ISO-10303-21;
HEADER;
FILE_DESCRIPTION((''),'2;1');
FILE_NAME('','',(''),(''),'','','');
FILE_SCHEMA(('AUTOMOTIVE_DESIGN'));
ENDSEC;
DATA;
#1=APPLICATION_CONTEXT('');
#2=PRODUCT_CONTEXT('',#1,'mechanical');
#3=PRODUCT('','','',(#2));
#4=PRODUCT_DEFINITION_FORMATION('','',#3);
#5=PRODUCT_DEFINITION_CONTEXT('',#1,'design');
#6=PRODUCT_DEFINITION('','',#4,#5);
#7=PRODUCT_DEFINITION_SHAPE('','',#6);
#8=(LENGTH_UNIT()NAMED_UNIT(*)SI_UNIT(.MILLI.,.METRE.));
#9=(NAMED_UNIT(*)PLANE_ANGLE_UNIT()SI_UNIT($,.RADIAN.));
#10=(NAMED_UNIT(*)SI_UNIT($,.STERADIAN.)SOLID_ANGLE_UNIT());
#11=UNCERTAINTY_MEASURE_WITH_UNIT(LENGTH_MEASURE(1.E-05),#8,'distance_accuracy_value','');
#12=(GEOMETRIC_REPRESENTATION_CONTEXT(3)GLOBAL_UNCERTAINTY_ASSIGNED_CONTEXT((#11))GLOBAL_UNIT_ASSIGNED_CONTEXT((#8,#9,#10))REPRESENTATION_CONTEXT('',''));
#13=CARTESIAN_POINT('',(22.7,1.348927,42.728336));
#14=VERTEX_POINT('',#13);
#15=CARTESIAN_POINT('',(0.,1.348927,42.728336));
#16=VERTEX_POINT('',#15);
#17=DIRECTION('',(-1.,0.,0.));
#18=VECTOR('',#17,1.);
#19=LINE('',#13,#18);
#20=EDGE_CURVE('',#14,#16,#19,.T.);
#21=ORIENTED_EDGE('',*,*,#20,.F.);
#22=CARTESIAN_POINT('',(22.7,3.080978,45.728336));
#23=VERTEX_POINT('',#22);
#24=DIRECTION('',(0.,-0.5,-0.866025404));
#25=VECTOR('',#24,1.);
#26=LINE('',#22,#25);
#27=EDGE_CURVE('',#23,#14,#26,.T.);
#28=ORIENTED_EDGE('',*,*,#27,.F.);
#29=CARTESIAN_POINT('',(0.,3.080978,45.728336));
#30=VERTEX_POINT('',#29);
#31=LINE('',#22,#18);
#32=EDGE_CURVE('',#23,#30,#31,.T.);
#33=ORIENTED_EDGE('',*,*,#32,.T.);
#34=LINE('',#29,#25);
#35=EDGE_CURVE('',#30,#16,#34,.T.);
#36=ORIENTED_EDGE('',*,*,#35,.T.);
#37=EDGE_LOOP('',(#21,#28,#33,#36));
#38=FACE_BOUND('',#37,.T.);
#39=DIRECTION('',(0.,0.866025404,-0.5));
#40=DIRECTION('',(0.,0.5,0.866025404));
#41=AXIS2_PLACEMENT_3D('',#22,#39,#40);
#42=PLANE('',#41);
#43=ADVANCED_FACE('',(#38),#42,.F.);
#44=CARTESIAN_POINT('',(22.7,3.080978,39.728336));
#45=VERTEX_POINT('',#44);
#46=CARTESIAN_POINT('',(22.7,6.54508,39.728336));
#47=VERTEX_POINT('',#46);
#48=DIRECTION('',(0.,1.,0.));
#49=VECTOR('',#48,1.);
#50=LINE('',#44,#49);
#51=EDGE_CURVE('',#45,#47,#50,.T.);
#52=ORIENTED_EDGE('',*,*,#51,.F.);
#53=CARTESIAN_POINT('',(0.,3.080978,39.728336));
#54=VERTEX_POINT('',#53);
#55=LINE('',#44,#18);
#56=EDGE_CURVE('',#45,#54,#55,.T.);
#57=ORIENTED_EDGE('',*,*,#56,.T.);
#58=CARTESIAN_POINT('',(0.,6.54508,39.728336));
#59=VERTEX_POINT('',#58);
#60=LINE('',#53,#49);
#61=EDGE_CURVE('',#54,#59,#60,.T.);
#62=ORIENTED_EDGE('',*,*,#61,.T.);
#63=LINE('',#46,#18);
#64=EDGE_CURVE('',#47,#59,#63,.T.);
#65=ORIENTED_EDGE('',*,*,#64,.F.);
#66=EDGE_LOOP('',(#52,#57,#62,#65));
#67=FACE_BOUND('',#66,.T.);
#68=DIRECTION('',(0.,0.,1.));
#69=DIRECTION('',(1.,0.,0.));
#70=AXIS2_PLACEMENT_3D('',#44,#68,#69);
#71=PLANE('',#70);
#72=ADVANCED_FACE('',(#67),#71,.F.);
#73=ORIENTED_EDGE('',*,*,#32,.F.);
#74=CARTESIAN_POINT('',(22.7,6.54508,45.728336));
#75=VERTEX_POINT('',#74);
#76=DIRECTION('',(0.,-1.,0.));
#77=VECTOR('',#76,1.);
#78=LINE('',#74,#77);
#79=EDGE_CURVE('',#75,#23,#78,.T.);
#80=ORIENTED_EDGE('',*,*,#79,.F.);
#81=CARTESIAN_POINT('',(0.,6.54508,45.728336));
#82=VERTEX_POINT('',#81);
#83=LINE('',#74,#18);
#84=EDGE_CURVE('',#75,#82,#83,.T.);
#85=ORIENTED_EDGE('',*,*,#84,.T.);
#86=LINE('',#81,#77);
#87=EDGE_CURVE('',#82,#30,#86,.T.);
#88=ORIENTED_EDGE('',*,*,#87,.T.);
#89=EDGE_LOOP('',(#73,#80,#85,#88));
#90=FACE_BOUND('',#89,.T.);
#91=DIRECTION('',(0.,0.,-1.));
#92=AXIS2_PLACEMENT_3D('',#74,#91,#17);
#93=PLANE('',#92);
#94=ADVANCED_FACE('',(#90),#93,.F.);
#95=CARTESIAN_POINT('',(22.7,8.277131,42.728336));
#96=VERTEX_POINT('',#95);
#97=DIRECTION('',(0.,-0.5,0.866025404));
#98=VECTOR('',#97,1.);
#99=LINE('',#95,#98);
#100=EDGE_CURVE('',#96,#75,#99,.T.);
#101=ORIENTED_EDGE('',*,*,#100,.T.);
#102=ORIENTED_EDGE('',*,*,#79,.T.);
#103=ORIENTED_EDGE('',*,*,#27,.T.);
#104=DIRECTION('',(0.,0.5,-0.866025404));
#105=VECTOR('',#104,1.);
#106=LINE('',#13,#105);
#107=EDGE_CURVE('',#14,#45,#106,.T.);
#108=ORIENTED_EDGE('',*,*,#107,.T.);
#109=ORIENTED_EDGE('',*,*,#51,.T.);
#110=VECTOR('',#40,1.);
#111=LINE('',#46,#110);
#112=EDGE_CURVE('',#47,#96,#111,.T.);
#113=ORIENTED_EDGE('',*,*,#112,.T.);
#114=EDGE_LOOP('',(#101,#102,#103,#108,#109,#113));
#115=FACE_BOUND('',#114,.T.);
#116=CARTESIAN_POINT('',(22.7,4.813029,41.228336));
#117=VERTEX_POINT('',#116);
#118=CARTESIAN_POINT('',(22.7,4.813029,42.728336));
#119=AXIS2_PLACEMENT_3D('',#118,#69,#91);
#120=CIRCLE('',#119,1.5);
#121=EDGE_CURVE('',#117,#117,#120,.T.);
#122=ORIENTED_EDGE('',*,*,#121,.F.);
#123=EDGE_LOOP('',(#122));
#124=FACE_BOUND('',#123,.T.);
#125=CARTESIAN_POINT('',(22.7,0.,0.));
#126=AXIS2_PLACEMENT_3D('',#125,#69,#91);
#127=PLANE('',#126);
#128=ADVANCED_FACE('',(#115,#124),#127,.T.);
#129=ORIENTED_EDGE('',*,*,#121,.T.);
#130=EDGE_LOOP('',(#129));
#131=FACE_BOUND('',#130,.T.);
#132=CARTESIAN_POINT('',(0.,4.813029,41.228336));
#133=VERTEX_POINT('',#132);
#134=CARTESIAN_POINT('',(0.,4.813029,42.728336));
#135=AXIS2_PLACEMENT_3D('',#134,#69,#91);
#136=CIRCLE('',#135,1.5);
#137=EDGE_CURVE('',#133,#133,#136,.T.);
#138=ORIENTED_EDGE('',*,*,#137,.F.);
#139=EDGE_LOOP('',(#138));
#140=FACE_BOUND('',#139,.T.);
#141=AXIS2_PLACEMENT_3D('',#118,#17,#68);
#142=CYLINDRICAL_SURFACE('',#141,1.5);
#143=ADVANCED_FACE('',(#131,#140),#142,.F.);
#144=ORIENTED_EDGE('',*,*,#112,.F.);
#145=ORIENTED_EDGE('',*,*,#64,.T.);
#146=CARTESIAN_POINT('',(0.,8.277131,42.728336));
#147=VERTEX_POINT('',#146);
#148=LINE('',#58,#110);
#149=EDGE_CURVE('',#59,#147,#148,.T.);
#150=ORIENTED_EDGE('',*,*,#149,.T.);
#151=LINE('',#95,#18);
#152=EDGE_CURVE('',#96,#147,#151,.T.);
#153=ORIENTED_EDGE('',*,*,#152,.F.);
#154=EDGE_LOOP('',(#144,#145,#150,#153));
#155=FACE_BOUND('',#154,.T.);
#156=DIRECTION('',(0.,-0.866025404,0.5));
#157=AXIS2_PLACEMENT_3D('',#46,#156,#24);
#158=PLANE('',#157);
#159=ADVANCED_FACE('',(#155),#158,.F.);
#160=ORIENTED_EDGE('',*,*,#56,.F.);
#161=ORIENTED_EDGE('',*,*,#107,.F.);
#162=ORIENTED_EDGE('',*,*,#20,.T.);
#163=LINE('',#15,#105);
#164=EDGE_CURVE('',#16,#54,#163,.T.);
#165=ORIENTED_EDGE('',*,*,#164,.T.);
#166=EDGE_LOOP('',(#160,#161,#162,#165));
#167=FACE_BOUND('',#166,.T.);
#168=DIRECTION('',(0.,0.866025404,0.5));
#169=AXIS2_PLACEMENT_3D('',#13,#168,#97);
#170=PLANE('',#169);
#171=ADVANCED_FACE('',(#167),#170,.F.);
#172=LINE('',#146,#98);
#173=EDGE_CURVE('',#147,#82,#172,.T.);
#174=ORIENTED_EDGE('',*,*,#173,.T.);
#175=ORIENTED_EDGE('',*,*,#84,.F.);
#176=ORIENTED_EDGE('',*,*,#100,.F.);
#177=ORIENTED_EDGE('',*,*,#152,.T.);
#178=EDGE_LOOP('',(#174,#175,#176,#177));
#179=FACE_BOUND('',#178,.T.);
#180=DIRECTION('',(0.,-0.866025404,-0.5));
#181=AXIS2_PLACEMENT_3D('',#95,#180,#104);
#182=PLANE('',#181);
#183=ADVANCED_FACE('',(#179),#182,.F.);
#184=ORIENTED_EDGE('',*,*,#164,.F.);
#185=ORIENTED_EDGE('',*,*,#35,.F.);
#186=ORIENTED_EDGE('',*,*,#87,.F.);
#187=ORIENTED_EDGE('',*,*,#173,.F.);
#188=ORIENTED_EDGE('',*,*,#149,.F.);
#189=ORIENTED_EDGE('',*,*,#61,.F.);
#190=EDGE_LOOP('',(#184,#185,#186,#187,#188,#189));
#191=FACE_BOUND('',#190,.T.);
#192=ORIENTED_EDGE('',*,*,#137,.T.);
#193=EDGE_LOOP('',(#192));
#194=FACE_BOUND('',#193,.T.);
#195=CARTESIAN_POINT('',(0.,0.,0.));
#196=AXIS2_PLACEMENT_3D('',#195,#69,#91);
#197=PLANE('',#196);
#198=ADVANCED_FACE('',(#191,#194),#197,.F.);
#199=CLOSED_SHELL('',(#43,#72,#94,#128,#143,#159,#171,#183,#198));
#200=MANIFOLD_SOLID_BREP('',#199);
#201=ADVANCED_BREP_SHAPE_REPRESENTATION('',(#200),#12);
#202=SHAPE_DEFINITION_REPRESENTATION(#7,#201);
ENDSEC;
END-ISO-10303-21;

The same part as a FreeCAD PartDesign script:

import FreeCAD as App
import Part
import Sketcher
Q = App.Units.Quantity

doc = App.newDocument("Part")
body = doc.addObject("PartDesign::Body", "Body")

# Sketch on YZ plane
sketch1 = body.newObject("Sketcher::SketchObject", "Sketch")
sketch1.AttachmentSupport = (doc.getObject("YZ_Plane"), [""])
sketch1.MapMode = "FlatFace"
sketch1.addGeometry(Part.LineSegment(App.Vector(8.3, 42.7, 0), App.Vector(6.5, 45.7, 0)), False)
sketch1.addGeometry(Part.LineSegment(App.Vector(6.5, 45.7, 0), App.Vector(3.1, 45.7, 0)), False)
sketch1.addGeometry(Part.LineSegment(App.Vector(3.1, 45.7, 0), App.Vector(1.3, 42.7, 0)), False)
sketch1.addGeometry(Part.LineSegment(App.Vector(1.3, 42.7, 0), App.Vector(3.1, 39.7, 0)), False)
sketch1.addGeometry(Part.LineSegment(App.Vector(3.1, 39.7, 0), App.Vector(6.5, 39.7, 0)), False)
sketch1.addGeometry(Part.LineSegment(App.Vector(6.5, 39.7, 0), App.Vector(8.3, 42.7, 0)), False)
sketch1.addGeometry(Part.Circle(App.Vector(4.8, 42.7, 0), App.Vector(0, 0, 1), 1.5), False)
sketch1.addConstraint(Sketcher.Constraint("Coincident", 0, 2, 1, 1))
sketch1.addConstraint(Sketcher.Constraint("Coincident", 1, 2, 2, 1))
sketch1.addConstraint(Sketcher.Constraint("Coincident", 2, 2, 3, 1))
sketch1.addConstraint(Sketcher.Constraint("Coincident", 3, 2, 4, 1))
sketch1.addConstraint(Sketcher.Constraint("Coincident", 4, 2, 5, 1))
sketch1.addConstraint(Sketcher.Constraint("Coincident", 5, 2, 0, 1))
sketch1.addConstraint(Sketcher.Constraint("Horizontal", 1))
sketch1.addConstraint(Sketcher.Constraint("Horizontal", 4))
sketch1.addConstraint(Sketcher.Constraint("Parallel", 0, 3))
sketch1.addConstraint(Sketcher.Constraint("Parallel", 2, 5))
sketch1.addConstraint(Sketcher.Constraint("Horizontal", 6, 3, 2, 2))
sketch1.addConstraint(Sketcher.Constraint("Horizontal", 2, 2, 5, 2))
sketch1.addConstraint(Sketcher.Constraint("Vertical", 1, 2, 3, 2))
sketch1.addConstraint(Sketcher.Constraint("Vertical", 0, 2, 4, 2))
sketch1.addConstraint(Sketcher.Constraint("Diameter", 6, 3.0))
sketch1.addConstraint(Sketcher.Constraint("Angle", 0, Q("120 deg")))
sketch1.addConstraint(Sketcher.Constraint("DistanceY", 6, 3, 0, 2, 3.0))
sketch1.addConstraint(Sketcher.Constraint("DistanceX", 1, 2, 1, 1, 3.464102))
sketch1.addConstraint(Sketcher.Constraint("DistanceX", 2, 2, 6, 3, 3.464102))
sketch1.addConstraint(Sketcher.Constraint("DistanceX", -1, 1, 6, 3, 4.813029))
sketch1.addConstraint(Sketcher.Constraint("DistanceY", -1, 1, 6, 3, 42.728336))
pad1 = body.newObject("PartDesign::Pad", "Pad")
pad1.Profile = sketch1
pad1.Length = 22.7

doc.recompute()
